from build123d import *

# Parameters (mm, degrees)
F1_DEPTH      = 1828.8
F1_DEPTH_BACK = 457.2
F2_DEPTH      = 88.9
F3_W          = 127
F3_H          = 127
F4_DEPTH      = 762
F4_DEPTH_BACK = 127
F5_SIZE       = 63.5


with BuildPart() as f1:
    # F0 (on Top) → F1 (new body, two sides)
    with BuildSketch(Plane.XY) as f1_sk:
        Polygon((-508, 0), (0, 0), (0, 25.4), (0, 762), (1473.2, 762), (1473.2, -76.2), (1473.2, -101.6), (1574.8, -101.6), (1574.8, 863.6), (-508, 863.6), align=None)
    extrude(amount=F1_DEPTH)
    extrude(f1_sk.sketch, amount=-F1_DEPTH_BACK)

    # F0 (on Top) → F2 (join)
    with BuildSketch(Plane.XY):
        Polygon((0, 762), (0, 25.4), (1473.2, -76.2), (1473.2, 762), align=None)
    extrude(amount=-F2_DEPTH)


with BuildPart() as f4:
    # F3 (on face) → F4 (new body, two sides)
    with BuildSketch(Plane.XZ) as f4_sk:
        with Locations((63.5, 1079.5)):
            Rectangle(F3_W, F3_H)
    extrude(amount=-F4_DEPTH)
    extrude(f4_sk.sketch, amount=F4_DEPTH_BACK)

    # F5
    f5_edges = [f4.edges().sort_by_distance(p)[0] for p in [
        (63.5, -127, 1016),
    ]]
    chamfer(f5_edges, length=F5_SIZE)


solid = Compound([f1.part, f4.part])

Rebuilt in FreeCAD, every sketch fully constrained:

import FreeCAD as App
import Part
import Sketcher
Q = App.Units.Quantity


def edges_at(feature, points):
    """Names of the edges that pass closest to the given points."""
    edges = feature.Shape.Edges
    near = lambda p: min(range(len(edges)), key=lambda i: edges[i].distToShape(Part.Vertex(*p))[0])
    return sorted({f"Edge{near(p) + 1}" for p in points})


def add_polygon(sketch, points):
    """Adds a closed chain of lines whose ends are joined by coincident constraints."""
    first, n = sketch.GeometryCount, len(points)
    for a, b in zip(points, points[1:] + points[:1]):
        sketch.addGeometry(Part.LineSegment(App.Vector(*a, 0), App.Vector(*b, 0)), False)
    for i in range(n):
        sketch.addConstraint(Sketcher.Constraint("Coincident", first + i, 2, first + (i + 1) % n, 1))

doc = App.newDocument("Part")
params = doc.addObject("Spreadsheet::Sheet", "Params")
for row, (alias, value) in enumerate([
    ("sketch1_width", "20 in"),
    ("sketch1_width2", "58 in"),
    ("sketch1_width3", "4 in"),
    ("sketch1_height", "30 in"),
    ("sketch1_height2", "34 in"),
    ("pad1_length", "72 in"),
    ("pad1_length2", "18 in"),
    ("sketch2_width", "58 in"),
    ("sketch2_height", "29 in"),
    ("sketch2_height2", "33 in"),
    ("pad2_length", "3.5 in"),
    ("sketch3_width", "5 in"),
    ("pad3_length", "30 in"),
    ("pad3_length2", "5 in"),
    ("chamfer_size", "2.5 in"),
], start=1):
    params.set(f"A{row}", alias)
    params.set(f"B{row}", "=" + value)
    params.setAlias(f"B{row}", alias)

body = doc.addObject("PartDesign::Body", "Body")

# Sketch on XY plane
sketch1 = body.newObject("Sketcher::SketchObject", "Sketch")
sketch1.AttachmentSupport = (doc.getObject("XY_Plane"), [""])
sketch1.MapMode = "FlatFace"
add_polygon(sketch1, [(-508, 0), (0, 0), (0, 762), (1473, 762), (1473, -102), (1575, -102), (1575, 864), (-508, 864)])  # lines 0-7
sketch1.addConstraint(Sketcher.Constraint("Horizontal", 0))
sketch1.addConstraint(Sketcher.Constraint("Vertical", 1))
sketch1.addConstraint(Sketcher.Constraint("Horizontal", 2))
sketch1.addConstraint(Sketcher.Constraint("Vertical", 3))
sketch1.addConstraint(Sketcher.Constraint("Horizontal", 4))
sketch1.addConstraint(Sketcher.Constraint("Vertical", 5))
sketch1.addConstraint(Sketcher.Constraint("Horizontal", 6))
sketch1.addConstraint(Sketcher.Constraint("Vertical", 7))
sketch1.addConstraint(Sketcher.Constraint("Coincident", 0, 2, -1, 1))
sketch1.addConstraint(Sketcher.Constraint("Equal", 3, 7))
sketch1.addConstraint(Sketcher.Constraint("DistanceX", 0, 1, 0, 2, Q("20 in")))
sketch1.addConstraint(Sketcher.Constraint("DistanceX", 2, 1, 2, 2, Q("58 in")))
sketch1.addConstraint(Sketcher.Constraint("DistanceX", 4, 1, 4, 2, Q("4 in")))
sketch1.addConstraint(Sketcher.Constraint("DistanceY", 1, 1, 1, 2, Q("30 in")))
sketch1.addConstraint(Sketcher.Constraint("DistanceY", 3, 2, 3, 1, Q("34 in")))
sketch1.setExpression("Constraints[18]", "Params.sketch1_width")
sketch1.setExpression("Constraints[19]", "Params.sketch1_width2")
sketch1.setExpression("Constraints[20]", "Params.sketch1_width3")
sketch1.setExpression("Constraints[21]", "Params.sketch1_height")
sketch1.setExpression("Constraints[22]", "Params.sketch1_height2")
pad1 = body.newObject("PartDesign::Pad", "Pad")
pad1.Profile = sketch1
pad1.Type = "TwoLengths"
pad1.setExpression("Length", "Params.pad1_length")
pad1.setExpression("Length2", "Params.pad1_length2")

# Sketch on XY plane
sketch2 = body.newObject("Sketcher::SketchObject", "Sketch001")
sketch2.AttachmentSupport = (doc.getObject("XY_Plane"), [""])
sketch2.MapMode = "FlatFace"
add_polygon(sketch2, [(0, 762), (0, 25), (1473, -76), (1473, 762)])  # lines 0-3
sketch2.addConstraint(Sketcher.Constraint("Vertical", 0))
sketch2.addConstraint(Sketcher.Constraint("Vertical", 2))
sketch2.addConstraint(Sketcher.Constraint("Horizontal", 3))
sketch2.addConstraint(Sketcher.Constraint("PointOnObject", 0, 2, -2))
sketch2.addConstraint(Sketcher.Constraint("DistanceX", 3, 2, 3, 1, Q("58 in")))
sketch2.addConstraint(Sketcher.Constraint("DistanceY", 0, 2, 0, 1, Q("29 in")))
sketch2.addConstraint(Sketcher.Constraint("DistanceY", 2, 1, 2, 2, Q("33 in")))
sketch2.addConstraint(Sketcher.Constraint("DistanceY", -1, 1, 0, 2, Q("1 in")))
sketch2.setExpression("Constraints[8]", "Params.sketch2_width")
sketch2.setExpression("Constraints[9]", "Params.sketch2_height")
sketch2.setExpression("Constraints[10]", "Params.sketch2_height2")
pad2 = body.newObject("PartDesign::Pad", "Pad001")
pad2.Profile = sketch2
pad2.setExpression("Length", "Params.pad2_length")
pad2.Reversed = True
body2 = doc.addObject("PartDesign::Body", "Body001")

# Sketch on XZ plane
sketch3 = body2.newObject("Sketcher::SketchObject", "Sketch002")
sketch3.AttachmentSupport = (doc.getObject("XZ_Plane001"), [""])
sketch3.MapMode = "FlatFace"
add_polygon(sketch3, [(0, 1143), (0, 1016), (127, 1016), (127, 1143)])  # lines 0-3
sketch3.addConstraint(Sketcher.Constraint("Vertical", 0))
sketch3.addConstraint(Sketcher.Constraint("Horizontal", 1))
sketch3.addConstraint(Sketcher.Constraint("Vertical", 2))
sketch3.addConstraint(Sketcher.Constraint("Horizontal", 3))
sketch3.addConstraint(Sketcher.Constraint("PointOnObject", 0, 2, -2))
sketch3.addConstraint(Sketcher.Constraint("Equal", 3, 0))
sketch3.addConstraint(Sketcher.Constraint("DistanceX", 1, 1, 1, 2, Q("5 in")))
sketch3.addConstraint(Sketcher.Constraint("DistanceY", -1, 1, 0, 2, Q("40 in")))
sketch3.setExpression("Constraints[10]", "Params.sketch3_width")
pad3 = body2.newObject("PartDesign::Pad", "Pad002")
pad3.Profile = sketch3
pad3.Type = "TwoLengths"
pad3.setExpression("Length", "Params.pad3_length")
pad3.setExpression("Length2", "Params.pad3_length2")
pad3.Reversed = True
doc.recompute()

chamfer = body2.newObject("PartDesign::Chamfer", "Chamfer")
chamfer.Base = (pad3, edges_at(pad3, [(63.5, -127, 1016)]))
chamfer.setExpression("Size", "Params.chamfer_size")

doc.recompute()
